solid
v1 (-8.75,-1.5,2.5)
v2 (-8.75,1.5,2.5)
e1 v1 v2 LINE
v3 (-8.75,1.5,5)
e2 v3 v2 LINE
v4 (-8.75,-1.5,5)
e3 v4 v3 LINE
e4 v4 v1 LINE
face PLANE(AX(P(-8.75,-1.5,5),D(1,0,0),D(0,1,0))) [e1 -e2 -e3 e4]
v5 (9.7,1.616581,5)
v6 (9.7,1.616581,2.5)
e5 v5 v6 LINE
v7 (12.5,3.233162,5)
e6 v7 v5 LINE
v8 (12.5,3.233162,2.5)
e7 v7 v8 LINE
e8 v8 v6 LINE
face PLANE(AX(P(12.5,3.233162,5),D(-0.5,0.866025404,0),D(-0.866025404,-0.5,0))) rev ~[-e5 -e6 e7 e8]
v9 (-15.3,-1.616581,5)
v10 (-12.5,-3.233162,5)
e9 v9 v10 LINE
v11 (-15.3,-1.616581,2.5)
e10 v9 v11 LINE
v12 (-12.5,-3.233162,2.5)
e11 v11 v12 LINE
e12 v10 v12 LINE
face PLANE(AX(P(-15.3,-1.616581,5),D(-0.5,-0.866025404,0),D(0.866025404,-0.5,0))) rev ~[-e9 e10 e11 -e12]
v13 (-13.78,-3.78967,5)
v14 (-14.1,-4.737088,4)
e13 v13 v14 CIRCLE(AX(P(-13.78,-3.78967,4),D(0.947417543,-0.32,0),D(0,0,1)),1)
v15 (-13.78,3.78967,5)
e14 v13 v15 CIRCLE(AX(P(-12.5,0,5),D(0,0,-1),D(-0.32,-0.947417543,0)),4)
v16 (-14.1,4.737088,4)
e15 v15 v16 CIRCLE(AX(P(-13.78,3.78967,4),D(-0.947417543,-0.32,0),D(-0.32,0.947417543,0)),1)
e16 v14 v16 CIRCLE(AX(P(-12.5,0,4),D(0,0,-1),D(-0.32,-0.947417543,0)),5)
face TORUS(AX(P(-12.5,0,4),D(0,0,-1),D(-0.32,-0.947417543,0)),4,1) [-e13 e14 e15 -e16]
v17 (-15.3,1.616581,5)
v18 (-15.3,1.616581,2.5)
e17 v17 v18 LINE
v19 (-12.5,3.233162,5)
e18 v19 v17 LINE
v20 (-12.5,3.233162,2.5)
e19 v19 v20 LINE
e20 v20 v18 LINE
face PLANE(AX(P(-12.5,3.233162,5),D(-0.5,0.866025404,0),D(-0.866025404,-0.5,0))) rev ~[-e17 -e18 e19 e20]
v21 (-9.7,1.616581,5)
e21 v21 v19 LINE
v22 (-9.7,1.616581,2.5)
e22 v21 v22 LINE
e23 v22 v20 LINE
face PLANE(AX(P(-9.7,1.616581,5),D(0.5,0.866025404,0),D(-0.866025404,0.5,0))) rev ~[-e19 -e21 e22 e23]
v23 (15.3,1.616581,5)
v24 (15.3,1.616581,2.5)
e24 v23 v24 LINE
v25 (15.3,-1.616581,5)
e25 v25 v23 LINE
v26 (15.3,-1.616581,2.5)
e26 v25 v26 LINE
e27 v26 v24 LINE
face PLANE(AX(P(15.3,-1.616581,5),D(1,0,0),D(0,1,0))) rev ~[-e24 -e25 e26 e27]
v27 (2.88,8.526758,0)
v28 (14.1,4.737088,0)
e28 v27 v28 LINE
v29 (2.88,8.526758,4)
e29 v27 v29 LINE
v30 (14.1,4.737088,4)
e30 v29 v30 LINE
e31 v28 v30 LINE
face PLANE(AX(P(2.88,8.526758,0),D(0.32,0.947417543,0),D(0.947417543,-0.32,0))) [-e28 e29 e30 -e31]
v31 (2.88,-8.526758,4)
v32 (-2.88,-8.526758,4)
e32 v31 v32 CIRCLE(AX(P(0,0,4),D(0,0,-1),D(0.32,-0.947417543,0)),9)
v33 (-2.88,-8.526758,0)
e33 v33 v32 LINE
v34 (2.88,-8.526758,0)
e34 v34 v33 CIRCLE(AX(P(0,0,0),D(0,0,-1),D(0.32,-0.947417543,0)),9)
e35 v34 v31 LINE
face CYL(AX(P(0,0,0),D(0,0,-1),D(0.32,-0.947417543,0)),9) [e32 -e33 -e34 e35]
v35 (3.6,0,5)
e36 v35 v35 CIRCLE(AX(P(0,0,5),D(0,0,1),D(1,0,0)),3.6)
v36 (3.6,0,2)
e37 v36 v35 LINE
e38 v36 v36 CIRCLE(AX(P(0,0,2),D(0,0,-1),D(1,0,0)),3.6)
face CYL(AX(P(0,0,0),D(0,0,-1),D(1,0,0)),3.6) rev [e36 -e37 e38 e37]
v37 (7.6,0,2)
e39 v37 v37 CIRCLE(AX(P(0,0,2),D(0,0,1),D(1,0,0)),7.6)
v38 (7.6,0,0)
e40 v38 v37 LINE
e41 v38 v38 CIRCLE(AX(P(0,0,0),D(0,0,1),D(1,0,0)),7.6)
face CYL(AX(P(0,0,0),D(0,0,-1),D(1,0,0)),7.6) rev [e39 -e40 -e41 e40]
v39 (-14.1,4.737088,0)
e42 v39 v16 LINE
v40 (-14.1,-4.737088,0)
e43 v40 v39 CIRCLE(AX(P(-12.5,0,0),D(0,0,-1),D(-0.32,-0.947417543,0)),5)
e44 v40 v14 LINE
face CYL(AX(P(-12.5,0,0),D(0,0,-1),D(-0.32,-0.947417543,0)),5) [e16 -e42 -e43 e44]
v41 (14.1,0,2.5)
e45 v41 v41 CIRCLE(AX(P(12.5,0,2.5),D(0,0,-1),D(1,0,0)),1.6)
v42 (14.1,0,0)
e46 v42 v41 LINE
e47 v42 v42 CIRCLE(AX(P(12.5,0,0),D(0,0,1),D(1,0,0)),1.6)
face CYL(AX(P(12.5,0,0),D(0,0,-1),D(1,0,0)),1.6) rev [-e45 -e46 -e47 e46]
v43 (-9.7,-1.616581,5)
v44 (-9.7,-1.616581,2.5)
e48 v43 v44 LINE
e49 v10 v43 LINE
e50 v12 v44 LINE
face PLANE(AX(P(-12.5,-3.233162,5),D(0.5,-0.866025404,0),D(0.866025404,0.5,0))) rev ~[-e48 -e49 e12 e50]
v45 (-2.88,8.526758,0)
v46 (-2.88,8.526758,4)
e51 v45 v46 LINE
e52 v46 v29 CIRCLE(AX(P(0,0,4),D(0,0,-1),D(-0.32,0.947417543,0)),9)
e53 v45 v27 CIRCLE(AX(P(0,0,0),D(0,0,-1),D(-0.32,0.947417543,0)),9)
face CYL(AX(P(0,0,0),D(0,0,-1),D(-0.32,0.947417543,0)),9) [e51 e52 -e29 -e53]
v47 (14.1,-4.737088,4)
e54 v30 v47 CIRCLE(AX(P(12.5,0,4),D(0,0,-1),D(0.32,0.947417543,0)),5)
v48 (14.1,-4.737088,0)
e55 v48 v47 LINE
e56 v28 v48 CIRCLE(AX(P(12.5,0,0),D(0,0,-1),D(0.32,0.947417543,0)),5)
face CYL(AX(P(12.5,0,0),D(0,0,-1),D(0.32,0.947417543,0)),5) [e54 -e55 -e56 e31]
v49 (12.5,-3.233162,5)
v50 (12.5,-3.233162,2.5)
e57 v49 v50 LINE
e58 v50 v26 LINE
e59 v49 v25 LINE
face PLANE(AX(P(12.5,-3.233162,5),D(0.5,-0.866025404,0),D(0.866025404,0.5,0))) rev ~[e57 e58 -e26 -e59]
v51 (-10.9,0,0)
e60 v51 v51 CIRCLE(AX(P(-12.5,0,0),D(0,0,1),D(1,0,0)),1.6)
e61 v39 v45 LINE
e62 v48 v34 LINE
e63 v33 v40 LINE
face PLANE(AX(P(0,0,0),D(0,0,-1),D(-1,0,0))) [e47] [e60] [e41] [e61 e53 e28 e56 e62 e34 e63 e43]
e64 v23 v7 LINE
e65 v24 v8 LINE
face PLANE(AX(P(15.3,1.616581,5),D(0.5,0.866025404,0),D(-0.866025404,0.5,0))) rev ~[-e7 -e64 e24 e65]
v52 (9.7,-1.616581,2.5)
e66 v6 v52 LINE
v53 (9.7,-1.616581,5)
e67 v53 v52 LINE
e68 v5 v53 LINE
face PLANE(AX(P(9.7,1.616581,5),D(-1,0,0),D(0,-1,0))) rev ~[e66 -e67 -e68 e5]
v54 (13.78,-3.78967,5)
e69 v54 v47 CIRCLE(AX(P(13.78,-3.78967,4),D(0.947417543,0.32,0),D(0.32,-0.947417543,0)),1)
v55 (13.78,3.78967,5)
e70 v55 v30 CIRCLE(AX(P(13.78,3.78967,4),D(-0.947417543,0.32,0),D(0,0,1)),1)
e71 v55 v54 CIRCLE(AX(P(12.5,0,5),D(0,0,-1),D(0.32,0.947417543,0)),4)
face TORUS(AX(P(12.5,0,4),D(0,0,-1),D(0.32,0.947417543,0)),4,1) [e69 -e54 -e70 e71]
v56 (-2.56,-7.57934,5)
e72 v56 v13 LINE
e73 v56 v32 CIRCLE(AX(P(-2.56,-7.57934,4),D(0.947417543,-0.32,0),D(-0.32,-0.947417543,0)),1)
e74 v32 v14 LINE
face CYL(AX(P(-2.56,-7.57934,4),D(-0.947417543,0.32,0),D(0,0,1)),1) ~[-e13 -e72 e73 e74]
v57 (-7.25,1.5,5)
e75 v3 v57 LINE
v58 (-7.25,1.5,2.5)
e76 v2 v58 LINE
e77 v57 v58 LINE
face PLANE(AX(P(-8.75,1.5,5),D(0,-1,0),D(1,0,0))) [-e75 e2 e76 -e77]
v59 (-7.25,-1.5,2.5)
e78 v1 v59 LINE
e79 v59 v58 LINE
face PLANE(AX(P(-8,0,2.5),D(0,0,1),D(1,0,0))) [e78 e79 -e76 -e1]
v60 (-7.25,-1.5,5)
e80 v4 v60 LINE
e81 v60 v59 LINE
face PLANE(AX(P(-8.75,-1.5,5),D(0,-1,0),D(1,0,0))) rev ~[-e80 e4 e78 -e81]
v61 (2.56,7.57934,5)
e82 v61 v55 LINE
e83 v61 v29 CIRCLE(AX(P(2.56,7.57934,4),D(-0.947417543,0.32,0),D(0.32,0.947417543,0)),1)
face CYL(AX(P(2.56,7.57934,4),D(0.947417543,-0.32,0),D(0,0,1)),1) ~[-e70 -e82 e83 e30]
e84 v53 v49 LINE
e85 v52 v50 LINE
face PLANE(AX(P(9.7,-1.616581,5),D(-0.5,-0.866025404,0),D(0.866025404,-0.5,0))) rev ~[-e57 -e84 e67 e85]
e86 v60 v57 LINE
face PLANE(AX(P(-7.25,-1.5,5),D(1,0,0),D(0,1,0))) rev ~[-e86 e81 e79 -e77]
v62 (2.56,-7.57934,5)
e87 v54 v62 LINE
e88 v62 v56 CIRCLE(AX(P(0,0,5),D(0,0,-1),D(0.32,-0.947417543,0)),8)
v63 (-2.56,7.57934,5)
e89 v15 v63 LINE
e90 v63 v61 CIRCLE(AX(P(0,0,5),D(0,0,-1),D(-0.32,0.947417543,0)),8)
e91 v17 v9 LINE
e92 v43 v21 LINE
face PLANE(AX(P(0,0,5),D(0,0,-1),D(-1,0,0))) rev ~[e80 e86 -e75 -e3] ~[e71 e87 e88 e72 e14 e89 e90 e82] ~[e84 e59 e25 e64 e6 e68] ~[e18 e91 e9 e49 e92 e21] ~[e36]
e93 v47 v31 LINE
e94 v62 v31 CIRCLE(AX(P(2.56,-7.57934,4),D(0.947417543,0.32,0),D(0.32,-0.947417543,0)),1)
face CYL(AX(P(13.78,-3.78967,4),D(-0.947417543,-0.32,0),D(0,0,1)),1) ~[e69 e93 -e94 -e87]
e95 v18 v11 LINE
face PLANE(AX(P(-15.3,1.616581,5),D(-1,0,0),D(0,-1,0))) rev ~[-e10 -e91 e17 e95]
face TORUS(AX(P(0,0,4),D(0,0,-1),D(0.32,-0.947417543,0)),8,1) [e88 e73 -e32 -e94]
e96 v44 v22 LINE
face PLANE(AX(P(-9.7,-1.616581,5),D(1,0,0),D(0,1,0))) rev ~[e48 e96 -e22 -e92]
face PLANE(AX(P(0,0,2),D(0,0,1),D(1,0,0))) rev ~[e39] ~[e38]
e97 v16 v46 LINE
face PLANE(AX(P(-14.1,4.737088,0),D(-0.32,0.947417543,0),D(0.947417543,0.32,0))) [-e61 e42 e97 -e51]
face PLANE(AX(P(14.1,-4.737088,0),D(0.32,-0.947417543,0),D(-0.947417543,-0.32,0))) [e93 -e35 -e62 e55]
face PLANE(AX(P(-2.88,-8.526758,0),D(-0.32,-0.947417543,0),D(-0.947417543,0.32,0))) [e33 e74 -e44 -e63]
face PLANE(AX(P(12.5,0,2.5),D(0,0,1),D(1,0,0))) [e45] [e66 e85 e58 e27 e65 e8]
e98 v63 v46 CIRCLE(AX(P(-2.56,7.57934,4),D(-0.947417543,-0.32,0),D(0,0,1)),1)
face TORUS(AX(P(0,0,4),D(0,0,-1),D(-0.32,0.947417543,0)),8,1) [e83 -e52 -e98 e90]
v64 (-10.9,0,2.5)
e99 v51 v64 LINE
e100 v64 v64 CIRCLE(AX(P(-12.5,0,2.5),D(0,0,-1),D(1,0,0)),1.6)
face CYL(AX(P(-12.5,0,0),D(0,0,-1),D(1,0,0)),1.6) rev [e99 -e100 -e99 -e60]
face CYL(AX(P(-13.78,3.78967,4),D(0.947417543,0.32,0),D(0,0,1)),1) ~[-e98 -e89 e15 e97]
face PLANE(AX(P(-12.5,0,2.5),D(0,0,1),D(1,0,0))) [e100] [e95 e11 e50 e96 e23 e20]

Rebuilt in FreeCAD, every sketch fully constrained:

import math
import FreeCAD as App
import Part
import Sketcher
Q = App.Units.Quantity


def edges_at(feature, points):
    """Names of the edges that pass closest to the given points."""
    edges = feature.Shape.Edges
    near = lambda p: min(range(len(edges)), key=lambda i: edges[i].distToShape(Part.Vertex(*p))[0])
    return sorted({f"Edge{near(p) + 1}" for p in points})

doc = App.newDocument("Part")
body = doc.addObject("PartDesign::Body", "Body")

# Sketch on XY plane
sketch1 = body.newObject("Sketcher::SketchObject", "Sketch")
sketch1.AttachmentSupport = (doc.getObject("XY_Plane"), [""])
sketch1.MapMode = "FlatFace"
sketch1.addGeometry([
    Part.LineSegment(App.Vector(-3, 9, 0), App.Vector(-14, 5, 0)),  # 0
    Part.ArcOfCircle(Part.Circle(App.Vector(-12, 0, 0), App.Vector(0, 0, 1), 5), math.radians(109), math.radians(251)),  # 1
    Part.LineSegment(App.Vector(-14, -5, 0), App.Vector(-3, -9, 0)),  # 2
    Part.ArcOfCircle(Part.Circle(App.Vector(0, 0, 0), App.Vector(0, 0, 1), 9), math.radians(-109), math.radians(-71)),  # 3
    Part.LineSegment(App.Vector(3, -9, 0), App.Vector(14, -5, 0)),  # 4
    Part.ArcOfCircle(Part.Circle(App.Vector(12, 0, 0), App.Vector(0, 0, 1), 5), math.radians(-71), math.radians(71)),  # 5
    Part.LineSegment(App.Vector(14, 5, 0), App.Vector(3, 9, 0)),  # 6
    Part.ArcOfCircle(Part.Circle(App.Vector(0, 0, 0), App.Vector(0, 0, 1), 9), math.radians(71), math.radians(109)),  # 7
], False)
sketch1.addConstraint([
    Sketcher.Constraint("Tangent", 0, 2, 1, 1),
    Sketcher.Constraint("Tangent", 1, 2, 2, 1),
    Sketcher.Constraint("Tangent", 2, 2, 3, 1),
    Sketcher.Constraint("Tangent", 3, 2, 4, 1),
    Sketcher.Constraint("Tangent", 4, 2, 5, 1),
    Sketcher.Constraint("Tangent", 5, 2, 6, 1),
    Sketcher.Constraint("Tangent", 6, 2, 7, 1),
    Sketcher.Constraint("Tangent", 7, 2, 0, 1),
    Sketcher.Constraint("Coincident", 3, 3, -1, 1),
    Sketcher.Constraint("Coincident", 7, 3, -1, 1),
    Sketcher.Constraint("Equal", 1, 5),
    Sketcher.Constraint("Equal", 3, 7),
    Sketcher.Constraint("Symmetric", 1, 3, 5, 3, -1, 1),
    Sketcher.Constraint("PointOnObject", 1, 3, -1),
    Sketcher.Constraint("Radius", 1, 5.0),
    Sketcher.Constraint("Radius", 3, 9.0),
    Sketcher.Constraint("DistanceX", 1, 3, 5, 3, 25.0),
])
pad1 = body.newObject("PartDesign::Pad", "Pad")
pad1.Profile = sketch1
pad1.Length = 5

# Sketch on XY plane
sketch2 = body.newObject("Sketcher::SketchObject", "Sketch001")
sketch2.AttachmentSupport = (doc.getObject("XY_Plane"), [""])
sketch2.MapMode = "FlatFace"
sketch2.addGeometry(Part.Circle(App.Vector(0, 0, 0), App.Vector(0, 0, 1), 8), False)
sketch2.addConstraint([
    Sketcher.Constraint("Coincident", 0, 3, -1, 1),
    Sketcher.Constraint("Diameter", 0, 15.2),
])
pocket1 = body.newObject("PartDesign::Pocket", "Pocket")
pocket1.Profile = sketch2
pocket1.Length = 2
pocket1.Reversed = True

# Sketch on XY plane
sketch3 = body.newObject("Sketcher::SketchObject", "Sketch002")
sketch3.AttachmentSupport = (doc.getObject("XY_Plane"), [""])
sketch3.MapMode = "FlatFace"
sketch3.addGeometry([
    Part.Circle(App.Vector(0, 0, 0), App.Vector(0, 0, 1), 3.6),
    Part.Circle(App.Vector(-12.5, 0, 0), App.Vector(0, 0, 1), 1.6),
    Part.Circle(App.Vector(12.5, 0, 0), App.Vector(0, 0, 1), 1.6),
], False)
sketch3.addConstraint([
    Sketcher.Constraint("Coincident", 0, 3, -1, 1),
    Sketcher.Constraint("Equal", 1, 2),
    Sketcher.Constraint("Symmetric", 1, 3, 2, 3, -1, 1),
    Sketcher.Constraint("PointOnObject", 1, 3, -1),
    Sketcher.Constraint("Diameter", 0, 7.2),
    Sketcher.Constraint("Diameter", 1, 3.2),
    Sketcher.Constraint("DistanceX", 1, 3, 2, 3, 25.0),
])
pocket2 = body.newObject("PartDesign::Pocket", "Pocket001")
pocket2.Profile = sketch3
pocket2.Length = 5
pocket2.Reversed = True

# Sketch on XY plane
sketch4 = body.newObject("Sketcher::SketchObject", "Sketch003")
sketch4.AttachmentSupport = (doc.getObject("XY_Plane"), [""])
sketch4.MapMode = "FlatFace"
sketch4.AttachmentOffset = App.Placement(App.Vector(0, 0, 5), App.Rotation())
sketch4.addGeometry([
    Part.LineSegment(App.Vector(-8.8, 1.5, 0), App.Vector(-8.8, -1.5, 0)),
    Part.LineSegment(App.Vector(-8.8, -1.5, 0), App.Vector(-7.2, -1.5, 0)),
    Part.LineSegment(App.Vector(-7.2, -1.5, 0), App.Vector(-7.2, 1.5, 0)),
    Part.LineSegment(App.Vector(-7.2, 1.5, 0), App.Vector(-8.8, 1.5, 0)),
], False)
sketch4.addConstraint([
    Sketcher.Constraint("Coincident", 0, 2, 1, 1),
    Sketcher.Constraint("Coincident", 1, 2, 2, 1),
    Sketcher.Constraint("Coincident", 2, 2, 3, 1),
    Sketcher.Constraint("Coincident", 3, 2, 0, 1),
    Sketcher.Constraint("Vertical", 0),
    Sketcher.Constraint("Horizontal", 1),
    Sketcher.Constraint("Vertical", 2),
    Sketcher.Constraint("Horizontal", 3),
    Sketcher.Constraint("DistanceY", 0, 2, 0, 1, 3.0),
    Sketcher.Constraint("DistanceX", 1, 1, 1, 2, 1.5),
    Sketcher.Constraint("DistanceY", 0, 2, -1, 1, 1.5),
    Sketcher.Constraint("DistanceX", 0, 2, -1, 1, 8.75),
])
pocket3 = body.newObject("PartDesign::Pocket", "Pocket002")
pocket3.Profile = sketch4
pocket3.Length = 2.5

# Sketch on XY plane
sketch5 = body.newObject("Sketcher::SketchObject", "Sketch004")
sketch5.AttachmentSupport = (doc.getObject("XY_Plane"), [""])
sketch5.MapMode = "FlatFace"
sketch5.AttachmentOffset = App.Placement(App.Vector(0, 0, 5), App.Rotation())
sketch5.addGeometry([
    Part.LineSegment(App.Vector(-12.5, 3.2, 0), App.Vector(-15.3, 1.6, 0)),  # 0
    Part.LineSegment(App.Vector(-15.3, 1.6, 0), App.Vector(-15.3, -1.6, 0)),  # 1
    Part.LineSegment(App.Vector(-15.3, -1.6, 0), App.Vector(-12.5, -3.2, 0)),  # 2
    Part.LineSegment(App.Vector(-12.5, -3.2, 0), App.Vector(-9.7, -1.6, 0)),  # 3
    Part.LineSegment(App.Vector(-9.7, -1.6, 0), App.Vector(-9.7, 1.6, 0)),  # 4
    Part.LineSegment(App.Vector(-9.7, 1.6, 0), App.Vector(-12.5, 3.2, 0)),  # 5
    Part.LineSegment(App.Vector(12.5, 3.2, 0), App.Vector(9.7, 1.6, 0)),  # 6
    Part.LineSegment(App.Vector(9.7, 1.6, 0), App.Vector(9.7, -1.6, 0)),  # 7
    Part.LineSegment(App.Vector(9.7, -1.6, 0), App.Vector(12.5, -3.2, 0)),  # 8
    Part.LineSegment(App.Vector(12.5, -3.2, 0), App.Vector(15.3, -1.6, 0)),  # 9
    Part.LineSegment(App.Vector(15.3, -1.6, 0), App.Vector(15.3, 1.6, 0)),  # 10
    Part.LineSegment(App.Vector(15.3, 1.6, 0), App.Vector(12.5, 3.2, 0)),  # 11
], False)
sketch5.addConstraint([
    Sketcher.Constraint("Coincident", 0, 2, 1, 1),
    Sketcher.Constraint("Coincident", 1, 2, 2, 1),
    Sketcher.Constraint("Coincident", 2, 2, 3, 1),
    Sketcher.Constraint("Coincident", 3, 2, 4, 1),
    Sketcher.Constraint("Coincident", 4, 2, 5, 1),
    Sketcher.Constraint("Coincident", 5, 2, 0, 1),
    Sketcher.Constraint("Coincident", 6, 2, 7, 1),
    Sketcher.Constraint("Coincident", 7, 2, 8, 1),
    Sketcher.Constraint("Coincident", 8, 2, 9, 1),
    Sketcher.Constraint("Coincident", 9, 2, 10, 1),
    Sketcher.Constraint("Coincident", 10, 2, 11, 1),
    Sketcher.Constraint("Coincident", 11, 2, 6, 1),
    Sketcher.Constraint("Vertical", 1),
    Sketcher.Constraint("Vertical", 4),
    Sketcher.Constraint("Vertical", 7),
    Sketcher.Constraint("Vertical", 10),
    Sketcher.Constraint("Symmetric", 3, 2, 6, 2, -1, 1),
    Sketcher.Constraint("Symmetric", 5, 2, 8, 2, -1, 1),
    Sketcher.Constraint("Symmetric", 0, 2, 9, 2, -1, 1),
    Sketcher.Constraint("Symmetric", 2, 2, 11, 2, -1, 1),
    Sketcher.Constraint("Symmetric", 2, 2, 8, 2, -2),
    Sketcher.Constraint("Parallel", 0, 3),
    Sketcher.Constraint("Parallel", 2, 5),
    Sketcher.Constraint("Parallel", 5, 8),
    Sketcher.Constraint("Parallel", 8, 11),
    Sketcher.Constraint("Horizontal", 1, 2, 3, 2),
    Sketcher.Constraint("Horizontal", 0, 2, 4, 2),
    Sketcher.Constraint("Angle", 0, Q("-150 deg")),
    Sketcher.Constraint("DistanceX", 0, 2, 6, 2, 25.0),
    Sketcher.Constraint("DistanceX", 0, 2, -1, 1, 15.3),
    Sketcher.Constraint("DistanceY", 1, 2, 1, 1, 3.233162),
])
pocket4 = body.newObject("PartDesign::Pocket", "Pocket003")
pocket4.Profile = sketch5
pocket4.Length = 2.5
doc.recompute()

fillet = body.newObject("PartDesign::Fillet", "Fillet")
fillet.Base = (pocket4, edges_at(pocket4, [
    (0, -9, 5),
    (-8.49, -6.632, 5),
    (-17.5, 0, 5),
    (-8.49, 6.632, 5),
    (0, 9, 5),
    (8.49, 6.632, 5),
    (17.5, 0, 5),
    (8.49, -6.632, 5),
]))
fillet.Radius = 1

doc.recompute()
